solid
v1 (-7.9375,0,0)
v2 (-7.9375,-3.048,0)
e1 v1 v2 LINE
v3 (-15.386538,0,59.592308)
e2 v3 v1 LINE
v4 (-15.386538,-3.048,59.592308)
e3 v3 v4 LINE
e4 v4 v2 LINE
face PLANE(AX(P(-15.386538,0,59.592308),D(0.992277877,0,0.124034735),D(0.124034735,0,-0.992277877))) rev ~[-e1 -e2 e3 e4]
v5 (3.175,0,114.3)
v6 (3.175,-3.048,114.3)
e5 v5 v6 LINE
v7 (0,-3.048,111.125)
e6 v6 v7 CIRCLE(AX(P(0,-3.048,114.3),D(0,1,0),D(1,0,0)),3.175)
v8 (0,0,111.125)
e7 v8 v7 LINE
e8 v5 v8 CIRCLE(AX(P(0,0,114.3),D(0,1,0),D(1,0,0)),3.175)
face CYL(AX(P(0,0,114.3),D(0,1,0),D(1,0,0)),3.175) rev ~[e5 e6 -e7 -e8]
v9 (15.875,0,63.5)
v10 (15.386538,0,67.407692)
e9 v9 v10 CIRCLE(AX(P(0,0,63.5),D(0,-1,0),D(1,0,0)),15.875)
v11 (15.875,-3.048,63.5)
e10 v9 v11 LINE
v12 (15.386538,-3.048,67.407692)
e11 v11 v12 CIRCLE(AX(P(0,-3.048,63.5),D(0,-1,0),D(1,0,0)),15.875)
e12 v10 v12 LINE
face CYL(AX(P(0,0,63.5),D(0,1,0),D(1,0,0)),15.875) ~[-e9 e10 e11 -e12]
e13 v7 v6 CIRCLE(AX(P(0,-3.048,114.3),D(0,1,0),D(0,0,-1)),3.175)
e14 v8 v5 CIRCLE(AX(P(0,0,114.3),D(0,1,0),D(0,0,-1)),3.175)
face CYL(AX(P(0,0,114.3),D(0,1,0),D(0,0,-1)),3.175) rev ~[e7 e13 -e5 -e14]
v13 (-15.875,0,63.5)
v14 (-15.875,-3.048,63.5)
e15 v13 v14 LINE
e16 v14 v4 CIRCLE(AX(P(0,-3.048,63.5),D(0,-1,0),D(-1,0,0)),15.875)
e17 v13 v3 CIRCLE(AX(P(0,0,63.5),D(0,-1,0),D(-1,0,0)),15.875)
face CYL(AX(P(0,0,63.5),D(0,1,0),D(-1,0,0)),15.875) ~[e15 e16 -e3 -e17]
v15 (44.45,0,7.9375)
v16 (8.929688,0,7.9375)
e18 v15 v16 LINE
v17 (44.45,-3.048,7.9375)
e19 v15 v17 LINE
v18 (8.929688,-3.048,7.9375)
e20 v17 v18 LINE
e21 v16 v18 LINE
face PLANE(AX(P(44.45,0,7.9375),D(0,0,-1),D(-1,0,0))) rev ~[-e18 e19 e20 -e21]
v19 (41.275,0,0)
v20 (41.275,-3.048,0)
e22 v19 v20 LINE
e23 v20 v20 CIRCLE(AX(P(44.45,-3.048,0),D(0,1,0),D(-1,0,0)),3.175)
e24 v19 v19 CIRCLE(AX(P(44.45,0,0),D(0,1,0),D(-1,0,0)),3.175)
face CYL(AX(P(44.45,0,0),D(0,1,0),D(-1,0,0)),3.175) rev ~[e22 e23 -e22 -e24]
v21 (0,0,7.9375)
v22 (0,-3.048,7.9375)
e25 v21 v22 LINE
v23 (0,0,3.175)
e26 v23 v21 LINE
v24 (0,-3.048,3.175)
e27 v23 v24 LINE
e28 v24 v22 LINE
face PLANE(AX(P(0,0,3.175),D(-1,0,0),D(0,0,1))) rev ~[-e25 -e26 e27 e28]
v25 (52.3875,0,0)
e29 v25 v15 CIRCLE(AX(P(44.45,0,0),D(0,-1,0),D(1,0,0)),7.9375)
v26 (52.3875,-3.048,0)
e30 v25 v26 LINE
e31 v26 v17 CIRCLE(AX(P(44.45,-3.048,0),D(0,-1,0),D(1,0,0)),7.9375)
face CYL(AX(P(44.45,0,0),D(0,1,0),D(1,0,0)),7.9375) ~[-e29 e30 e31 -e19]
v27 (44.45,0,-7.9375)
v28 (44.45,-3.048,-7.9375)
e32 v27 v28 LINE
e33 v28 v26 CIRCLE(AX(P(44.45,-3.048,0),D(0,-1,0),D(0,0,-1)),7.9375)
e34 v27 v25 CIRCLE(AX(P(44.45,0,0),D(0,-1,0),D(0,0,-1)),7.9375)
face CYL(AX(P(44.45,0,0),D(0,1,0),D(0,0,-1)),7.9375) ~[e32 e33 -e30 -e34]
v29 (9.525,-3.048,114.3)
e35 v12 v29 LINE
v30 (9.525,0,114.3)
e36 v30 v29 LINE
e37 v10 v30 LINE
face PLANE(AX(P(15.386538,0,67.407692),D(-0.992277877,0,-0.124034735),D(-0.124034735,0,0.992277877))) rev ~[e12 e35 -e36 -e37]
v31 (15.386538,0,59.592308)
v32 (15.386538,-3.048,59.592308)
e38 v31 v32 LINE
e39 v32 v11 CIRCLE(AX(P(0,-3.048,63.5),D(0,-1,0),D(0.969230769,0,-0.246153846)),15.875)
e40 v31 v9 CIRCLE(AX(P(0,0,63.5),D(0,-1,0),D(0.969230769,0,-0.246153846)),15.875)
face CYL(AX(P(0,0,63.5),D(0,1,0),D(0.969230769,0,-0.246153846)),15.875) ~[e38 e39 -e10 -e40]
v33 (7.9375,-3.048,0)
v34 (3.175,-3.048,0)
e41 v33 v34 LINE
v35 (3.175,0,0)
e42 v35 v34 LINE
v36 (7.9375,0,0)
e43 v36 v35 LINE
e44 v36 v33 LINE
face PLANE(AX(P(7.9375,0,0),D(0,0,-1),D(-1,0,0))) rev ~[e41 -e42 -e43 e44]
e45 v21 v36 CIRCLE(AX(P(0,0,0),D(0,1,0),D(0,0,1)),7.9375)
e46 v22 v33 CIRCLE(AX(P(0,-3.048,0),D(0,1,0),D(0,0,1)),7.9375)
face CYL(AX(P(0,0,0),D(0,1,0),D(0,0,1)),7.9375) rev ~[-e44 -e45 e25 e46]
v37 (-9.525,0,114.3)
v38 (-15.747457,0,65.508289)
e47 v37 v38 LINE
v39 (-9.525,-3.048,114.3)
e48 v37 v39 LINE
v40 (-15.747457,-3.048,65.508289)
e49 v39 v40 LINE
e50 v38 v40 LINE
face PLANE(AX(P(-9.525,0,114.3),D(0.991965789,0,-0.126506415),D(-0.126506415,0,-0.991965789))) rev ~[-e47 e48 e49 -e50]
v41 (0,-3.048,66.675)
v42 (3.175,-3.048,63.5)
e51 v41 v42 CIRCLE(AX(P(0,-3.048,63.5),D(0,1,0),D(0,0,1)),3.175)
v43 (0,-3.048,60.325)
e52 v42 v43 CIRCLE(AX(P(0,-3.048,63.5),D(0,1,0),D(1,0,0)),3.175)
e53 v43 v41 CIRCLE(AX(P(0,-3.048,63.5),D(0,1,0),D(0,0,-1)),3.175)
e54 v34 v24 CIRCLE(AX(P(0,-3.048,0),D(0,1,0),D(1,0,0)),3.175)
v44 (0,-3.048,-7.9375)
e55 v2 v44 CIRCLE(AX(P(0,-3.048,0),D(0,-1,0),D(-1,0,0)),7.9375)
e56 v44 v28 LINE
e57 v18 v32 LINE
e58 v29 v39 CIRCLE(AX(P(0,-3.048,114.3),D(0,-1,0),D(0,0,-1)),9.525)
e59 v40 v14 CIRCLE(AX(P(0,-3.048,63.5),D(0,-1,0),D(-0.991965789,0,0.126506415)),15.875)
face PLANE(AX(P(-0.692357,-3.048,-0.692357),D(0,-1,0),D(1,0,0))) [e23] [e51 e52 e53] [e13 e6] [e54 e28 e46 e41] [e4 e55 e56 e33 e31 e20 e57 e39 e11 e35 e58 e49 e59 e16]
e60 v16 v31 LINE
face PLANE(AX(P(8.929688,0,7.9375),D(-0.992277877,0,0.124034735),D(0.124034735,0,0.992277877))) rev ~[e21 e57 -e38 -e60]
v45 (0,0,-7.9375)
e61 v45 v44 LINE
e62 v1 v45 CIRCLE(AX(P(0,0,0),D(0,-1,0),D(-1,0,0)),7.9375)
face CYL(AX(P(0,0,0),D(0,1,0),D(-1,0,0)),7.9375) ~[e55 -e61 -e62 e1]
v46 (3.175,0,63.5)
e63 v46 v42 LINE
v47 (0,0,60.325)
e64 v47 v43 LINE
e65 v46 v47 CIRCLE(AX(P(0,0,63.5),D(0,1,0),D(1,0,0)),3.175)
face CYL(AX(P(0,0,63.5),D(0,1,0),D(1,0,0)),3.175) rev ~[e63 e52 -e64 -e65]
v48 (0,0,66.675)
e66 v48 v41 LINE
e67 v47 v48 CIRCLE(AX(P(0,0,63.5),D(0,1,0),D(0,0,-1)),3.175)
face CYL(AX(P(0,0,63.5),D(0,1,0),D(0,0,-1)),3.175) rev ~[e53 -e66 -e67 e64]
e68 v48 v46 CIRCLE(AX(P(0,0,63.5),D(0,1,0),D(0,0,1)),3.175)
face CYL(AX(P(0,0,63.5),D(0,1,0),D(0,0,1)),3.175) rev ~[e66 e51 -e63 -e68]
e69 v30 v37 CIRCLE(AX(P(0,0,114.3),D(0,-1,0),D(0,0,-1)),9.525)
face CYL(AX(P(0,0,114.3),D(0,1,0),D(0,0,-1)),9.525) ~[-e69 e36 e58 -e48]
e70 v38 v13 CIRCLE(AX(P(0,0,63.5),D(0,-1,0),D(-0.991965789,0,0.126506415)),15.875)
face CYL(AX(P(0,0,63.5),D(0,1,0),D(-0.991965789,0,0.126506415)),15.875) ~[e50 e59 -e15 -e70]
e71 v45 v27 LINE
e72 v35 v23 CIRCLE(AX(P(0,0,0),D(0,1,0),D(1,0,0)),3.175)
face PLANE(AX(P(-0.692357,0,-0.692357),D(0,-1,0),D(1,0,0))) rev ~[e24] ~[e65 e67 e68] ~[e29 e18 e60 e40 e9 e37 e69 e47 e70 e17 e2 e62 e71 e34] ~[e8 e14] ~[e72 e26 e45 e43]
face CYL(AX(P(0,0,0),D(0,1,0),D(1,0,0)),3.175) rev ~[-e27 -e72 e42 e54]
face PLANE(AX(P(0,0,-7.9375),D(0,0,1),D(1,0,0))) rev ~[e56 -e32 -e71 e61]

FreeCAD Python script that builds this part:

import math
import FreeCAD as App
import Part
import Sketcher
Q = App.Units.Quantity

doc = App.newDocument("Part")
body = doc.addObject("PartDesign::Body", "Body")

sketch1 = body.newObject("Sketcher::SketchObject", "Sketch")
sketch1.AttachmentSupport = (doc.getObject("XZ_Plane"), [""])
sketch1.MapMode = "FlatFace"
sketch1.addGeometry([
    Part.LineSegment(App.Vector(44.45, 7.9375, 0), App.Vector(8.929688, 7.9375, 0)),
    Part.LineSegment(App.Vector(8.929688, 7.9375, 0), App.Vector(15.386538, 59.592308, 0)),
    Part.ArcOfCircle(Part.Circle(App.Vector(0, 63.5, 0), App.Vector(0, 0, 1), 15.875), math.radians(-14.250033), math.radians(0)),
    Part.ArcOfCircle(Part.Circle(App.Vector(0, 63.5, 0), App.Vector(0, 0, 1), 15.875), math.radians(0), math.radians(14.250033)),
    Part.LineSegment(App.Vector(15.386538, 67.407692, 0), App.Vector(9.525, 114.3, 0)),
    Part.ArcOfCircle(Part.Circle(App.Vector(0, 114.3, 0), App.Vector(0, 0, 1), 9.525), math.radians(0), math.radians(180)),
    Part.LineSegment(App.Vector(-9.525, 114.3, 0), App.Vector(-15.747457, 65.508289, 0)),
    Part.ArcOfCircle(Part.Circle(App.Vector(0, 63.5, 0), App.Vector(0, 0, 1), 15.875), math.radians(172.732242), math.radians(180)),
    Part.ArcOfCircle(Part.Circle(App.Vector(0, 63.5, 0), App.Vector(0, 0, 1), 15.875), math.radians(180), math.radians(194.250033)),
    Part.LineSegment(App.Vector(-15.386538, 59.592308, 0), App.Vector(-7.9375, 0, 0)),
    Part.ArcOfCircle(Part.Circle(App.Vector(0, 0, 0), App.Vector(0, 0, 1), 7.9375), math.radians(180), math.radians(270)),
    Part.LineSegment(App.Vector(0, -7.9375, 0), App.Vector(44.45, -7.9375, 0)),
    Part.ArcOfCircle(Part.Circle(App.Vector(44.45, 0, 0), App.Vector(0, 0, 1), 7.9375), math.radians(-90), math.radians(0)),
    Part.ArcOfCircle(Part.Circle(App.Vector(44.45, 0, 0), App.Vector(0, 0, 1), 7.9375), math.radians(0), math.radians(90)),
    Part.LineSegment(App.Vector(0, 3.175, 0), App.Vector(0, 7.9375, 0)),
    Part.ArcOfCircle(Part.Circle(App.Vector(0, 0, 0), App.Vector(0, 0, 1), 7.9375), math.radians(0), math.radians(90)),
    Part.LineSegment(App.Vector(7.9375, 0, 0), App.Vector(3.175, 0, 0)),
    Part.ArcOfCircle(Part.Circle(App.Vector(0, 0, 0), App.Vector(0, 0, 1), 3.175), math.radians(90), math.radians(360)),
    Part.Circle(App.Vector(44.45, 0, 0), App.Vector(0, 0, 1), 3.175),
    Part.ArcOfCircle(Part.Circle(App.Vector(0, 63.5, 0), App.Vector(0, 0, 1), 3.175), math.radians(90), math.radians(270)),
    Part.ArcOfCircle(Part.Circle(App.Vector(0, 63.5, 0), App.Vector(0, 0, 1), 3.175), math.radians(0), math.radians(90)),
    Part.ArcOfCircle(Part.Circle(App.Vector(0, 63.5, 0), App.Vector(0, 0, 1), 3.175), math.radians(-90), math.radians(0)),
    Part.ArcOfCircle(Part.Circle(App.Vector(0, 114.3, 0), App.Vector(0, 0, 1), 3.175), math.radians(0), math.radians(270)),
    Part.ArcOfCircle(Part.Circle(App.Vector(0, 114.3, 0), App.Vector(0, 0, 1), 3.175), math.radians(-90), math.radians(0)),
], False)
sketch1.addConstraint([
    Sketcher.Constraint("Coincident", 0, 2, 1, 1),
    Sketcher.Constraint("Coincident", 1, 2, 2, 1),
    Sketcher.Constraint("Tangent", 2, 2, 3, 1),
    Sketcher.Constraint("Coincident", 3, 2, 4, 1),
    Sketcher.Constraint("Coincident", 4, 2, 5, 1),
    Sketcher.Constraint("Coincident", 5, 2, 6, 1),
    Sketcher.Constraint("Tangent", 6, 2, 7, 1),
    Sketcher.Constraint("Tangent", 7, 2, 8, 1),
    Sketcher.Constraint("Coincident", 8, 2, 9, 1),
    Sketcher.Constraint("Coincident", 9, 2, 10, 1),
    Sketcher.Constraint("Tangent", 10, 2, 11, 1),
    Sketcher.Constraint("Tangent", 11, 2, 12, 1),
    Sketcher.Constraint("Tangent", 12, 2, 13, 1),
    Sketcher.Constraint("Tangent", 13, 2, 0, 1),
    Sketcher.Constraint("Coincident", 14, 2, 15, 2),
    Sketcher.Constraint("Coincident", 15, 1, 16, 1),
    Sketcher.Constraint("Coincident", 16, 2, 17, 2),
    Sketcher.Constraint("Coincident", 17, 1, 14, 1),
    Sketcher.Constraint("Tangent", 19, 1, 20, 2),
    Sketcher.Constraint("Tangent", 20, 1, 21, 2),
    Sketcher.Constraint("Tangent", 21, 1, 19, 2),
    Sketcher.Constraint("Tangent", 22, 1, 23, 2),
    Sketcher.Constraint("Coincident", 23, 1, 22, 2),
    Sketcher.Constraint("Horizontal", 0),
    Sketcher.Constraint("Horizontal", 11),
    Sketcher.Constraint("Vertical", 14),
    Sketcher.Constraint("Horizontal", 16),
    Sketcher.Constraint("Coincident", 10, 3, -1, 1),
    Sketcher.Constraint("Coincident", 15, 3, -1, 1),
    Sketcher.Constraint("Coincident", 17, 3, -1, 1),
    Sketcher.Constraint("Coincident", 7, 3, 2, 3),
    Sketcher.Constraint("Coincident", 18, 3, 12, 3),
    Sketcher.Constraint("Coincident", 19, 3, 2, 3),
    Sketcher.Constraint("Coincident", 22, 3, 5, 3),
    Sketcher.Constraint("Equal", 2, 3),
    Sketcher.Constraint("Equal", 3, 7),
    Sketcher.Constraint("Equal", 7, 8),
    Sketcher.Constraint("Equal", 10, 12),
    Sketcher.Constraint("Equal", 12, 13),
    Sketcher.Constraint("Equal", 13, 15),
    Sketcher.Constraint("Equal", 17, 18),
    Sketcher.Constraint("Equal", 18, 19),
    Sketcher.Constraint("Equal", 21, 22),
    Sketcher.Constraint("Symmetric", 4, 2, 5, 2, -2),
    Sketcher.Constraint("Symmetric", 2, 2, 7, 2, -2),
    Sketcher.Constraint("PointOnObject", 9, 2, -1),
    Sketcher.Constraint("PointOnObject", 12, 2, -1),
    Sketcher.Constraint("PointOnObject", 14, 2, -2),
    Sketcher.Constraint("PointOnObject", 15, 1, -1),
    Sketcher.Constraint("PointOnObject", 19, 1, -2),
    Sketcher.Constraint("PointOnObject", 21, 1, -2),
    Sketcher.Constraint("PointOnObject", 23, 1, -2),
    Sketcher.Constraint("Parallel", 4, 9),
    Sketcher.Constraint("Horizontal", 21, 3, 2, 2),
    Sketcher.Constraint("Horizontal", 23, 3, 4, 2),
    Sketcher.Constraint("Horizontal", 1, 2, 8, 2),
    Sketcher.Constraint("Horizontal", 7, 2, 20, 1),
    Sketcher.Constraint("Horizontal", 5, 2, 22, 1),
    Sketcher.Constraint("Vertical", 1, 2, 3, 2),
    Sketcher.Constraint("Diameter", 18, Q("0.25 in")),
    Sketcher.Constraint("Radius", 2, Q("0.625 in")),
    Sketcher.Constraint("Radius", 5, Q("0.375 in")),
    Sketcher.Constraint("Radius", 10, Q("0.3125 in")),
    Sketcher.Constraint("DistanceY", 2, 3, 5, 3, Q("2 in")),
    Sketcher.Constraint("DistanceX", 11, 1, 11, 2, Q("1.75 in")),
    Sketcher.Constraint("DistanceY", -1, 1, 2, 3, Q("2.5 in")),
    Sketcher.Constraint("DistanceX", 0, 2, 0, 1, 35.520313),
])
pad1 = body.newObject("PartDesign::Pad", "Pad")
pad1.Profile = sketch1
pad1.Length = Q("0.12 in")

doc.recompute()
